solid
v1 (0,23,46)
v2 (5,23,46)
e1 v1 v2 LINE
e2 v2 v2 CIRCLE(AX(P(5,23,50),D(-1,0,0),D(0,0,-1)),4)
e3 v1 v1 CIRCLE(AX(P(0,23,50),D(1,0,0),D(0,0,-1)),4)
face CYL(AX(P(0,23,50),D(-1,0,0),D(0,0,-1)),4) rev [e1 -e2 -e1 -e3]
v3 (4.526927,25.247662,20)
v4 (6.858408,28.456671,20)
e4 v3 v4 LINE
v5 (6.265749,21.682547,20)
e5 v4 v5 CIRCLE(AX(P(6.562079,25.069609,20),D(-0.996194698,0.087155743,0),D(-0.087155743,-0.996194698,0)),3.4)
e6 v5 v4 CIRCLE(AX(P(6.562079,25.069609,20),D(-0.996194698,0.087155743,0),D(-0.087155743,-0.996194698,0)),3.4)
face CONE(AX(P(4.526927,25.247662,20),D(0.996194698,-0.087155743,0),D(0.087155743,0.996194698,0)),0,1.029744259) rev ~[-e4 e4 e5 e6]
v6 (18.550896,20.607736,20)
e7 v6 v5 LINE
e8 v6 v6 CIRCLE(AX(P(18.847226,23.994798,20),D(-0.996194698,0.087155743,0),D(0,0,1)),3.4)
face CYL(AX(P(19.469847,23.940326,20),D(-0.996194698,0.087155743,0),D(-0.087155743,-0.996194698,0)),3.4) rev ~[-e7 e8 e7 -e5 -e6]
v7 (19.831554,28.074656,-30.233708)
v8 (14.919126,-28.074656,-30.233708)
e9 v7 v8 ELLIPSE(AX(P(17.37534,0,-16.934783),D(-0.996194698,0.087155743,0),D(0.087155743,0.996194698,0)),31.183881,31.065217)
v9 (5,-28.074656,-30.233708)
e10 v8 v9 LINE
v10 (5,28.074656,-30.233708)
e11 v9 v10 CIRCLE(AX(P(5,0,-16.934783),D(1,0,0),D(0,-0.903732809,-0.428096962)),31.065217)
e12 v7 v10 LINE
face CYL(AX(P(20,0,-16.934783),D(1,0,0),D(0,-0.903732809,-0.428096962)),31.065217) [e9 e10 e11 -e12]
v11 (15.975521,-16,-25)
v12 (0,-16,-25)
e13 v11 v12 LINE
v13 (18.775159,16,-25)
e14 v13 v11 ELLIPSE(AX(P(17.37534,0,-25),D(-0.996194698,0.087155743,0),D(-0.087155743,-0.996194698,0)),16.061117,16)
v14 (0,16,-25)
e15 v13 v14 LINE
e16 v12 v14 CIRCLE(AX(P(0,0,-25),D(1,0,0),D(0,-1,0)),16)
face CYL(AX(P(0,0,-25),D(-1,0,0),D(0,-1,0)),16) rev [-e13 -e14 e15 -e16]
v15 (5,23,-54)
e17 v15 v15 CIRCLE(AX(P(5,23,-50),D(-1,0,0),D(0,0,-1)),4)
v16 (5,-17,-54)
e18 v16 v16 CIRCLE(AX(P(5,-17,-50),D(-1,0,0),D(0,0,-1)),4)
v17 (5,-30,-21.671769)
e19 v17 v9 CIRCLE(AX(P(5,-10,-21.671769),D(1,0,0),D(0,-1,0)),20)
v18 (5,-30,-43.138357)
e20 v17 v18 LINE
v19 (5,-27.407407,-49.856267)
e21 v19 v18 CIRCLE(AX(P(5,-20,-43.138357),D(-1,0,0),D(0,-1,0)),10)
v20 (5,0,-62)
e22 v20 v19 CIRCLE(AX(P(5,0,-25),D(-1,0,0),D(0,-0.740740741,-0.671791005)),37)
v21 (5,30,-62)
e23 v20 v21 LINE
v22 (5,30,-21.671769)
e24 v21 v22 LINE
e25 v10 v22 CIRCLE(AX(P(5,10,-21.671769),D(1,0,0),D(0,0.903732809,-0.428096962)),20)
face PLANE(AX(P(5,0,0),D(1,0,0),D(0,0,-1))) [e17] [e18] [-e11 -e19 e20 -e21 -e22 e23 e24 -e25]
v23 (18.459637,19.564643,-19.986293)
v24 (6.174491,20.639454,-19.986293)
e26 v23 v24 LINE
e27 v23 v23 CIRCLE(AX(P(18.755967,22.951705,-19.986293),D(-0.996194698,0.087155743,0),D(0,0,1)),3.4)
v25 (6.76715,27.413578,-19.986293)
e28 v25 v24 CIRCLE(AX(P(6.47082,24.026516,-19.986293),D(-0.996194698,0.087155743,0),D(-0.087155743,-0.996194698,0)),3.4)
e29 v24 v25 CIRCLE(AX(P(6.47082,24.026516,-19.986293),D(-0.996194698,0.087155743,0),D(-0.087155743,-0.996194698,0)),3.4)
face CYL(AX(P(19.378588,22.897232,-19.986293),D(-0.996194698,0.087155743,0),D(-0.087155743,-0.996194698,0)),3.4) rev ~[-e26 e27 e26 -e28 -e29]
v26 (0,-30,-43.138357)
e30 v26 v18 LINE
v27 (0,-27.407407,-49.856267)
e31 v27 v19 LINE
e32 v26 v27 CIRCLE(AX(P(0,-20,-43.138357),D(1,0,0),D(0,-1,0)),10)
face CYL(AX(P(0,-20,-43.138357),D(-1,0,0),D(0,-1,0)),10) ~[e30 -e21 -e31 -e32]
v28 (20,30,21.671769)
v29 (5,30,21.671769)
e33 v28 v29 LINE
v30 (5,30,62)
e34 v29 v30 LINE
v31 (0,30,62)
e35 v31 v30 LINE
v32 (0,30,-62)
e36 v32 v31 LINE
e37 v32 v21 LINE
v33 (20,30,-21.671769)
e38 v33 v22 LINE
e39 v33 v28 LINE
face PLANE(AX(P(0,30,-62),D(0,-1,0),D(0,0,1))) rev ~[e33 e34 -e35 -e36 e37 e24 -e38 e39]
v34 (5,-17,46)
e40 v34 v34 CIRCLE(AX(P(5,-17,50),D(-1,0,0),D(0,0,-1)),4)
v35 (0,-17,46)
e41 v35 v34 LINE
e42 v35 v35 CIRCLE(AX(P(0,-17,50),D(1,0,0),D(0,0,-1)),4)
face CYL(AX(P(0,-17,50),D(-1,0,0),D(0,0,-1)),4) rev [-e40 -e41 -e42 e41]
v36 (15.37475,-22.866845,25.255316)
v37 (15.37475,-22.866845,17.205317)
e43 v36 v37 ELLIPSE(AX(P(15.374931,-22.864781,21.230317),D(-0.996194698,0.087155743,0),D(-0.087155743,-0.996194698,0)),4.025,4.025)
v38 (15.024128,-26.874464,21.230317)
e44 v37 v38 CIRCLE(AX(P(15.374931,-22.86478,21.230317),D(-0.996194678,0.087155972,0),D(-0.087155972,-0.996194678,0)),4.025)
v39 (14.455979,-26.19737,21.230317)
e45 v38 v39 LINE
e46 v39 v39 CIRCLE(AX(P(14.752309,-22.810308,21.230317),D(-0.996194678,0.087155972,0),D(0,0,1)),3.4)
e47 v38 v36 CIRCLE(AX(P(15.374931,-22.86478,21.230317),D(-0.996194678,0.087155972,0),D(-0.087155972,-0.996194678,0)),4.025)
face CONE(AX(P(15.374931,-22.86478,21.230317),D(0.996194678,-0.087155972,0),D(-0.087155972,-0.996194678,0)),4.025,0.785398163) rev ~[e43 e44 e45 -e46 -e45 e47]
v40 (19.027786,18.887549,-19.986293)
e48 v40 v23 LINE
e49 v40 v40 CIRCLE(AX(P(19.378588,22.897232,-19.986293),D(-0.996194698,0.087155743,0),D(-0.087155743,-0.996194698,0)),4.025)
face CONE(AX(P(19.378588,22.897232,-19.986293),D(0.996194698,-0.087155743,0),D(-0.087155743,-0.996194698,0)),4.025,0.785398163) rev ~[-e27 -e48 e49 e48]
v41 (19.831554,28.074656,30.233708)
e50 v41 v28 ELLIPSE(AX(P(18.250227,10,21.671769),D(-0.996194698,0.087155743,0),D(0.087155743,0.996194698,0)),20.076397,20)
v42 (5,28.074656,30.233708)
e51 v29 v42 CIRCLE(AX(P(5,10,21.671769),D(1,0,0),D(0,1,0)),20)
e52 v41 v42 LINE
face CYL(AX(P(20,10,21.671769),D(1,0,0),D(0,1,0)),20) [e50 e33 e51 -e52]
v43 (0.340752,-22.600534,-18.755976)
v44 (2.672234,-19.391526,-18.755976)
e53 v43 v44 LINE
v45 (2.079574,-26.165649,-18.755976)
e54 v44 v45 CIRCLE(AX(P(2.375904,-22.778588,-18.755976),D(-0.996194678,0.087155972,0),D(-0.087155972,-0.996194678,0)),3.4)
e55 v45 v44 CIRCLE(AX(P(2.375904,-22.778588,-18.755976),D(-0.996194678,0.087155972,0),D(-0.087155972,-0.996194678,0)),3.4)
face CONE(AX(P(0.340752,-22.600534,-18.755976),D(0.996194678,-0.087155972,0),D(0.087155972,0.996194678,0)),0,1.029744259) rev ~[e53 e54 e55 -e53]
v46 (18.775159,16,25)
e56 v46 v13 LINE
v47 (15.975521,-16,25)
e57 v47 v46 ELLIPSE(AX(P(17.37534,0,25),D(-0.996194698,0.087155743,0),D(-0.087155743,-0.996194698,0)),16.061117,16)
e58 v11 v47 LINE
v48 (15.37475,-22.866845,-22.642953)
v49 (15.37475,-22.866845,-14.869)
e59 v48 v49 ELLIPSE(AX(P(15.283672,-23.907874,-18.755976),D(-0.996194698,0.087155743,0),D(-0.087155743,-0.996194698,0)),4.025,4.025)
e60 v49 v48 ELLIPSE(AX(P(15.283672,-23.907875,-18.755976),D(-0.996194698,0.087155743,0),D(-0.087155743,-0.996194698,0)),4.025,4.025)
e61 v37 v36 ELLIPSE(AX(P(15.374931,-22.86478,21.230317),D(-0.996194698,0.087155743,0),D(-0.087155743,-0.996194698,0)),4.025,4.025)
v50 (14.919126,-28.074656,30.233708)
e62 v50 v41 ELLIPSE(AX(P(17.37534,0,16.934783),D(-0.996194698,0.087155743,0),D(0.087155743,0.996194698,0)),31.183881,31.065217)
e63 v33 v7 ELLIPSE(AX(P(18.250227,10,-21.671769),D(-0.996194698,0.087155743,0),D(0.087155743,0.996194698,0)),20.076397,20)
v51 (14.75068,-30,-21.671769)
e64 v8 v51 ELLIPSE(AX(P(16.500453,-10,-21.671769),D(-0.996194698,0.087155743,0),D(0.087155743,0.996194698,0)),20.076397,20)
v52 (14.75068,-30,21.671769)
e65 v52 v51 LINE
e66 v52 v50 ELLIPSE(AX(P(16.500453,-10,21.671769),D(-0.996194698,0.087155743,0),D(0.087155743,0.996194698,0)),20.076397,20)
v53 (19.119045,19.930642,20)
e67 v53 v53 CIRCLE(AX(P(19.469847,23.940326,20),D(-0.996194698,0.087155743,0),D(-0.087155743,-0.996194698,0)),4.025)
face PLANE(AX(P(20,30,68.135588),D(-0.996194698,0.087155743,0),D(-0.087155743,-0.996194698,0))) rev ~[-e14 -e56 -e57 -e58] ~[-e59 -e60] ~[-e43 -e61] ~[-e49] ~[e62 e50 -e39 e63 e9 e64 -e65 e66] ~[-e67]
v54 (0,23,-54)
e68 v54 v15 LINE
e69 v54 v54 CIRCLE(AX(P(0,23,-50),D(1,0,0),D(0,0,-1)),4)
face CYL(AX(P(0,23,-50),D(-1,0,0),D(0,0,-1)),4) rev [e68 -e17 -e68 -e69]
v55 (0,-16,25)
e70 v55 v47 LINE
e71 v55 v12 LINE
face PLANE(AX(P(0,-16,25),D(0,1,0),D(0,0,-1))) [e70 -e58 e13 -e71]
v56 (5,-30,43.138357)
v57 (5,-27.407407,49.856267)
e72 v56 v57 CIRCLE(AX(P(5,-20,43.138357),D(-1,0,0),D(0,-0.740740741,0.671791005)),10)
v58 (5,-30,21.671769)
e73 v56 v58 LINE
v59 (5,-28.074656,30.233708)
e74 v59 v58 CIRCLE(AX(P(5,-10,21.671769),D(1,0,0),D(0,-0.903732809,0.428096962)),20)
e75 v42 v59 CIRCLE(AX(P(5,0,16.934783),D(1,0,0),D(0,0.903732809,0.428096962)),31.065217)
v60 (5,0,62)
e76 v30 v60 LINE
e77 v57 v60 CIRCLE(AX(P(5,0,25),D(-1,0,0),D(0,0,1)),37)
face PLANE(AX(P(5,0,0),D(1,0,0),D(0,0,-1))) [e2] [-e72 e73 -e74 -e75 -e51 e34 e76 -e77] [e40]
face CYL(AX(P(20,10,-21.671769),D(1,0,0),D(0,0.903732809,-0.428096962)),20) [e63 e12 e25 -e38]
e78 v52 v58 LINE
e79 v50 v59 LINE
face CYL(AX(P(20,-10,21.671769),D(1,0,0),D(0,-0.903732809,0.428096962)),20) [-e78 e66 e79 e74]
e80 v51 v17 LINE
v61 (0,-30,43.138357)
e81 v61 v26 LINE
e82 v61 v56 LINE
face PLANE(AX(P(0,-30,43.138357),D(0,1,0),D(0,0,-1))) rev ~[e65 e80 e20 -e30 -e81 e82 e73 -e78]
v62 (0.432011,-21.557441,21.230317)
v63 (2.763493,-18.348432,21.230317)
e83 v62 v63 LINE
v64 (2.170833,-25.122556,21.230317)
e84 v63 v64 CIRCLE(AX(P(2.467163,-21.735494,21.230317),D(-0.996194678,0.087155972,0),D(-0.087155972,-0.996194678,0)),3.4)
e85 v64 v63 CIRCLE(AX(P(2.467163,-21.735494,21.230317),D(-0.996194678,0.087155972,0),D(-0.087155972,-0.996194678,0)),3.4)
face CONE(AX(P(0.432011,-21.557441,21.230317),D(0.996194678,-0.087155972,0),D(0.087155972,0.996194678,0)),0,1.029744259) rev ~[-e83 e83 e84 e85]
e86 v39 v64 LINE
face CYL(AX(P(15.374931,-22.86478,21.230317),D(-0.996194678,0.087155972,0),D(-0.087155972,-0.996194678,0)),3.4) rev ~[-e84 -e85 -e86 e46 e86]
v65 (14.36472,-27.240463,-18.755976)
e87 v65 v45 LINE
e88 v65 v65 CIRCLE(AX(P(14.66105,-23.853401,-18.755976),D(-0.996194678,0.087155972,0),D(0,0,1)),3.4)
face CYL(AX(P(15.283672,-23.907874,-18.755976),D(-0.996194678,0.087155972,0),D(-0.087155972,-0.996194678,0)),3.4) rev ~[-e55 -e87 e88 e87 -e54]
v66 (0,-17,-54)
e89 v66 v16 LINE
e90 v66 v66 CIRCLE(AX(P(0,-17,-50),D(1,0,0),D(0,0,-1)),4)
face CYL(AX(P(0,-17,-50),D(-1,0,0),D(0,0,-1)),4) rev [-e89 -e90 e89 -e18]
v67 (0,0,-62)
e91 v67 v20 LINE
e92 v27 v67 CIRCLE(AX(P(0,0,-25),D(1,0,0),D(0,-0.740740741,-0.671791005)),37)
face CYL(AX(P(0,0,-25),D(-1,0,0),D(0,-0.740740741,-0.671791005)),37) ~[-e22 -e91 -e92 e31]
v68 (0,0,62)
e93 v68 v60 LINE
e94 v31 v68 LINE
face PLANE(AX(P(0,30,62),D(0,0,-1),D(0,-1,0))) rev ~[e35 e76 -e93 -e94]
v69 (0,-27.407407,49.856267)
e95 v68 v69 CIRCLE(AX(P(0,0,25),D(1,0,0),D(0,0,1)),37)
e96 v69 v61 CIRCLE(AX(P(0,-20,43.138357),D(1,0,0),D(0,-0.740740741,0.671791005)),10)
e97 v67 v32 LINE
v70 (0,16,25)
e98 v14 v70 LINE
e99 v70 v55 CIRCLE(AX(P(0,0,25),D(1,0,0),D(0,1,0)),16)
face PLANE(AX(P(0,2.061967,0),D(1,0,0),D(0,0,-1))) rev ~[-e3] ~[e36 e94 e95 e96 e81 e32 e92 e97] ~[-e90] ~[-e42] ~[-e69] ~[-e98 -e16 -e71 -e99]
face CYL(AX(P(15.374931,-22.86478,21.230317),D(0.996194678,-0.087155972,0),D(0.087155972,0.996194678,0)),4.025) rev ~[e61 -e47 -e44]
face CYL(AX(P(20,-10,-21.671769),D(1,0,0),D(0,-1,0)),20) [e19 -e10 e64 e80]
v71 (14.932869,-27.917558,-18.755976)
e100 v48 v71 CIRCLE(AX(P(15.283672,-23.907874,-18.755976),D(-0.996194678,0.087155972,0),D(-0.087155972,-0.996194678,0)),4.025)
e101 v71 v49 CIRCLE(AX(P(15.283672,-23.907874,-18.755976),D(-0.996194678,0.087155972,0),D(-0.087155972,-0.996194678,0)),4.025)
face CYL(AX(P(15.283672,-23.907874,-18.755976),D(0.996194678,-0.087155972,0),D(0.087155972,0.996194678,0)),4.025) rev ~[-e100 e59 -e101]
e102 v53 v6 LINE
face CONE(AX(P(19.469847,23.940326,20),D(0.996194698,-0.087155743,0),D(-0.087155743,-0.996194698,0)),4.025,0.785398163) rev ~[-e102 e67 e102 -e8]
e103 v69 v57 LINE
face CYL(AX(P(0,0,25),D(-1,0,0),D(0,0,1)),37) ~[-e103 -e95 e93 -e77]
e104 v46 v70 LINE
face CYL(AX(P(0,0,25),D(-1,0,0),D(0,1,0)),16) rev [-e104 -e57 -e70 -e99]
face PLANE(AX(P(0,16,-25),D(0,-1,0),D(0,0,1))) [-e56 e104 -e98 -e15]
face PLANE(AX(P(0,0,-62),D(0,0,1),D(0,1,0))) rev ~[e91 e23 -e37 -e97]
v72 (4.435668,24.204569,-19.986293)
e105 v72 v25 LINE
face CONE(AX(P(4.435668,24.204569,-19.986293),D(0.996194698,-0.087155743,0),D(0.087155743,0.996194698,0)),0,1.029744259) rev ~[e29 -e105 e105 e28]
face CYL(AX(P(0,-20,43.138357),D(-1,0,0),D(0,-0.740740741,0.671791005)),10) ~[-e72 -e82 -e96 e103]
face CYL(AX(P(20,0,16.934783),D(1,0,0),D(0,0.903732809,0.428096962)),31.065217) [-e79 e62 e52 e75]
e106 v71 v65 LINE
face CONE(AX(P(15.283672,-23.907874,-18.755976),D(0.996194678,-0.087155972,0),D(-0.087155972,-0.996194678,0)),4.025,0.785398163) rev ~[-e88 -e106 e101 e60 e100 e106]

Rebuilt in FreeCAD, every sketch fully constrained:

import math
import FreeCAD as App
import Part
import Sketcher
Q = App.Units.Quantity


def add_polygon(sketch, points):
    """Adds a closed chain of lines whose ends are joined by coincident constraints."""
    first, n = sketch.GeometryCount, len(points)
    for a, b in zip(points, points[1:] + points[:1]):
        sketch.addGeometry(Part.LineSegment(App.Vector(*a, 0), App.Vector(*b, 0)), False)
    for i in range(n):
        sketch.addConstraint(Sketcher.Constraint("Coincident", first + i, 2, first + (i + 1) % n, 1))

doc = App.newDocument("Part")
body = doc.addObject("PartDesign::Body", "Body")

# Sketch on YZ plane
sketch1 = body.newObject("Sketcher::SketchObject", "Sketch")
sketch1.AttachmentSupport = (doc.getObject("YZ_Plane"), [""])
sketch1.MapMode = "FlatFace"
sketch1.addGeometry([
    Part.LineSegment(App.Vector(-30, 43.1, 0), App.Vector(-30, -43.1, 0)),  # 0
    Part.ArcOfCircle(Part.Circle(App.Vector(-20, -43.1, 0), App.Vector(0, 0, 1), 10), math.radians(-180), math.radians(-138)),  # 1
    Part.ArcOfCircle(Part.Circle(App.Vector(0, -25, 0), App.Vector(0, 0, 1), 37), math.radians(-138), math.radians(-90)),  # 2
    Part.LineSegment(App.Vector(0, -62, 0), App.Vector(30, -62, 0)),  # 3
    Part.LineSegment(App.Vector(30, -62, 0), App.Vector(30, 62, 0)),  # 4
    Part.LineSegment(App.Vector(30, 62, 0), App.Vector(0, 62, 0)),  # 5
    Part.ArcOfCircle(Part.Circle(App.Vector(0, 25, 0), App.Vector(0, 0, 1), 37), math.radians(90), math.radians(138)),  # 6
    Part.ArcOfCircle(Part.Circle(App.Vector(-20, 43.1, 0), App.Vector(0, 0, 1), 10), math.radians(138), math.radians(180)),  # 7
    Part.Circle(App.Vector(-17, 50, 0), App.Vector(0, 0, 1), 4),  # 8
    Part.LineSegment(App.Vector(-16, -25, 0), App.Vector(-16, 25, 0)),  # 9
    Part.ArcOfCircle(Part.Circle(App.Vector(0, 25, 0), App.Vector(0, 0, 1), 16), math.radians(0), math.radians(180)),  # 10
    Part.LineSegment(App.Vector(16, 25, 0), App.Vector(16, -25, 0)),  # 11
    Part.ArcOfCircle(Part.Circle(App.Vector(0, -25, 0), App.Vector(0, 0, 1), 16), math.radians(180), math.radians(360)),  # 12
    Part.Circle(App.Vector(-17, -50, 0), App.Vector(0, 0, 1), 4),  # 13
    Part.Circle(App.Vector(23, 50, 0), App.Vector(0, 0, 1), 4),  # 14
    Part.Circle(App.Vector(23, -50, 0), App.Vector(0, 0, 1), 4),  # 15
], False)
sketch1.addConstraint([
    Sketcher.Constraint("Tangent", 0, 2, 1, 1),
    Sketcher.Constraint("Tangent", 1, 2, 2, 1),
    Sketcher.Constraint("Tangent", 2, 2, 3, 1),
    Sketcher.Constraint("Coincident", 3, 2, 4, 1),
    Sketcher.Constraint("Coincident", 4, 2, 5, 1),
    Sketcher.Constraint("Tangent", 5, 2, 6, 1),
    Sketcher.Constraint("Tangent", 6, 2, 7, 1),
    Sketcher.Constraint("Tangent", 7, 2, 0, 1),
    Sketcher.Constraint("Tangent", 9, 2, 10, 2),
    Sketcher.Constraint("Tangent", 10, 1, 11, 1),
    Sketcher.Constraint("Tangent", 11, 2, 12, 2),
    Sketcher.Constraint("Tangent", 12, 1, 9, 1),
    Sketcher.Constraint("Vertical", 0),
    Sketcher.Constraint("Horizontal", 3),
    Sketcher.Constraint("Vertical", 4),
    Sketcher.Constraint("Horizontal", 5),
    Sketcher.Constraint("Vertical", 9),
    Sketcher.Constraint("Vertical", 11),
    Sketcher.Constraint("Coincident", 10, 3, 6, 3),
    Sketcher.Constraint("Coincident", 12, 3, 2, 3),
    Sketcher.Constraint("Equal", 2, 6),
    Sketcher.Constraint("Equal", 1, 7),
    Sketcher.Constraint("Equal", 8, 13),
    Sketcher.Constraint("Equal", 13, 14),
    Sketcher.Constraint("Equal", 14, 15),
    Sketcher.Constraint("Symmetric", 2, 3, 6, 3, -1, 1),
    Sketcher.Constraint("Symmetric", 8, 3, 13, 3, -1),
    Sketcher.Constraint("Symmetric", 14, 3, 15, 3, -1),
    Sketcher.Constraint("Horizontal", 8, 3, 14, 3),
    Sketcher.Constraint("Diameter", 8, 8.0),
    Sketcher.Constraint("Radius", 1, 10.0),
    Sketcher.Constraint("Radius", 2, 37.0),
    Sketcher.Constraint("Radius", 10, 16.0),
    Sketcher.Constraint("DistanceX", 3, 1, 3, 2, 30.0),
    Sketcher.Constraint("DistanceY", 4, 1, 4, 2, 124.0),
    Sketcher.Constraint("DistanceX", 1, 3, -1, 1, 20.0),
    Sketcher.Constraint("DistanceX", 8, 3, -1, 1, 17.0),
    Sketcher.Constraint("DistanceY", -1, 1, 8, 3, 50.0),
    Sketcher.Constraint("DistanceX", -1, 1, 14, 3, 23.0),
])
pad1 = body.newObject("PartDesign::Pad", "Pad")
pad1.Profile = sketch1
pad1.Length = 20

# Sketch on YZ plane
sketch2 = body.newObject("Sketcher::SketchObject", "Sketch001")
sketch2.AttachmentSupport = (doc.getObject("YZ_Plane"), [""])
sketch2.MapMode = "FlatFace"
sketch2.AttachmentOffset = App.Placement(App.Vector(0, 0, 20), App.Rotation())
add_polygon(sketch2, [(45, 77), (-45, 77), (-45, -77), (45, -77)])  # lines 0-3
sketch2.addGeometry(Part.LineSegment(App.Vector(30, 22, 0), App.Vector(30, -22, 0)), False)  # 4
sketch2.addGeometry(Part.ArcOfCircle(Part.Circle(App.Vector(10, -22, 0), App.Vector(0, 0, 1), 20), math.radians(-25), math.radians(0)), False)  # 5
sketch2.addGeometry(Part.ArcOfCircle(Part.Circle(App.Vector(0, -17, 0), App.Vector(0, 0, 1), 31), math.radians(-155), math.radians(-25)), False)  # 6
sketch2.addGeometry(Part.ArcOfCircle(Part.Circle(App.Vector(-10, -22, 0), App.Vector(0, 0, 1), 20), math.radians(-180), math.radians(-155)), False)  # 7
sketch2.addGeometry(Part.LineSegment(App.Vector(-30, -22, 0), App.Vector(-30, 22, 0)), False)  # 8
sketch2.addGeometry(Part.ArcOfCircle(Part.Circle(App.Vector(-10, 22, 0), App.Vector(0, 0, 1), 20), math.radians(155), math.radians(180)), False)  # 9
sketch2.addGeometry(Part.ArcOfCircle(Part.Circle(App.Vector(0, 17, 0), App.Vector(0, 0, 1), 31), math.radians(25), math.radians(155)), False)  # 10
sketch2.addGeometry(Part.ArcOfCircle(Part.Circle(App.Vector(10, 22, 0), App.Vector(0, 0, 1), 20), math.radians(0), math.radians(25)), False)  # 11
sketch2.addGeometry(Part.LineSegment(App.Vector(-16, 25, 0), App.Vector(-16, -25, 0)), False)  # 12
sketch2.addGeometry(Part.ArcOfCircle(Part.Circle(App.Vector(0, -25, 0), App.Vector(0, 0, 1), 16), math.radians(180), math.radians(360)), False)  # 13
sketch2.addGeometry(Part.LineSegment(App.Vector(16, -25, 0), App.Vector(16, 25, 0)), False)  # 14
sketch2.addGeometry(Part.ArcOfCircle(Part.Circle(App.Vector(0, 25, 0), App.Vector(0, 0, 1), 16), math.radians(0), math.radians(180)), False)  # 15
sketch2.addConstraint([
    Sketcher.Constraint("Tangent", 4, 2, 5, 2),
    Sketcher.Constraint("Tangent", 5, 1, 6, 2),
    Sketcher.Constraint("Tangent", 6, 1, 7, 2),
    Sketcher.Constraint("Tangent", 7, 1, 8, 1),
    Sketcher.Constraint("Tangent", 8, 2, 9, 2),
    Sketcher.Constraint("Tangent", 9, 1, 10, 2),
    Sketcher.Constraint("Tangent", 10, 1, 11, 2),
    Sketcher.Constraint("Tangent", 11, 1, 4, 1),
    Sketcher.Constraint("Tangent", 12, 2, 13, 1),
    Sketcher.Constraint("Tangent", 13, 2, 14, 1),
    Sketcher.Constraint("Tangent", 14, 2, 15, 1),
    Sketcher.Constraint("Tangent", 15, 2, 12, 1),
    Sketcher.Constraint("Horizontal", 0),
    Sketcher.Constraint("Vertical", 1),
    Sketcher.Constraint("Horizontal", 2),
    Sketcher.Constraint("Vertical", 3),
    Sketcher.Constraint("Vertical", 4),
    Sketcher.Constraint("Vertical", 8),
    Sketcher.Constraint("Vertical", 12),
    Sketcher.Constraint("Vertical", 14),
    Sketcher.Constraint("Equal", 5, 7),
    Sketcher.Constraint("Equal", 7, 9),
    Sketcher.Constraint("Equal", 6, 10),
    Sketcher.Constraint("Equal", 9, 11),
    Sketcher.Constraint("Symmetric", 5, 3, 9, 3, -1, 1),
    Sketcher.Constraint("Symmetric", 13, 3, 15, 3, -1, 1),
    Sketcher.Constraint("Symmetric", 0, 2, 2, 2, -1, 1),
    Sketcher.Constraint("Symmetric", 6, 3, 10, 3, -1),
    Sketcher.Constraint("Radius", 5, 20.0),
    Sketcher.Constraint("Radius", 13, 16.0),
    Sketcher.Constraint("DistanceY", 12, 2, 12, 1, 50.0),
    Sketcher.Constraint("DistanceX", -1, 1, 5, 3, 10.0),
    Sketcher.Constraint("DistanceX", 0, 2, 0, 1, 89.84),
    Sketcher.Constraint("DistanceY", 1, 2, 1, 1, 153.84),
    Sketcher.Constraint("Radius", 6, 31.065217),
    Sketcher.Constraint("DistanceY", 4, 2, 4, 1, 43.343537),
])
pocket1 = body.newObject("PartDesign::Pocket", "Pocket")
pocket1.Profile = sketch2
pocket1.Length = 15

# Sketch on XY plane
sketch3 = body.newObject("Sketcher::SketchObject", "Sketch002")
sketch3.AttachmentSupport = (doc.getObject("XY_Plane"), [""])
sketch3.MapMode = "FlatFace"
sketch3.AttachmentOffset = App.Placement(App.Vector(0, 0, -62), App.Rotation())
add_polygon(sketch3, [(15, -30), (20, 30), (20, -30)])  # lines 0-2
sketch3.addConstraint([
    Sketcher.Constraint("Vertical", 1),
    Sketcher.Constraint("Horizontal", 2),
    Sketcher.Constraint("DistanceY", 1, 2, 1, 1, 60.0),
    Sketcher.Constraint("Angle", 0, Q("85 deg")),
    Sketcher.Constraint("DistanceX", -1, 1, 0, 2, 20.0),
    Sketcher.Constraint("DistanceY", -1, 1, 0, 2, 30.0),
])
pocket2 = body.newObject("PartDesign::Pocket", "Pocket001")
pocket2.Profile = sketch3
pocket2.Type = "ThroughAll"
pocket2.Midplane = True

# Sketch on an angled plane
sketch4 = body.newObject("Sketcher::SketchObject", "Sketch003")
sketch4.Placement = App.Placement(App.Vector(17.243355, -1.508598, 0), App.Rotation(App.Vector(0.087155743, 0.996194698, 0), App.Vector(0, 0, 1), App.Vector(0.996194698, -0.087155743, 0), "ZXY"))
sketch4.addGeometry([
    Part.Circle(App.Vector(25.5, 20, 0), App.Vector(0, 0, 1), 3.4),
    Part.Circle(App.Vector(24.5, -20, 0), App.Vector(0, 0, 1), 3.4),
], False)
sketch4.addConstraint([
    Sketcher.Constraint("Equal", 0, 1),
    Sketcher.Constraint("Diameter", 0, 6.8),
    Sketcher.Constraint("DistanceY", -1, 1, 0, 3, 20.0),
    Sketcher.Constraint("DistanceX", -1, 1, 0, 3, 25.546135),
    Sketcher.Constraint("DistanceX", -1, 1, 1, 3, 24.499057),
    Sketcher.Constraint("DistanceY", 1, 3, -1, 1, 19.986293),
])
doc.recompute()
hole = body.newObject("PartDesign::Hole", "Hole")
hole.Profile = sketch4
hole.ThreadType = "None"
hole.Diameter = 6.8
hole.DepthType = "Dimension"
hole.Depth = 12.957074
hole.DrillPoint = "Angled"
hole.DrillPointAngle = 118
hole.HoleCutType = "Countersink"
hole.HoleCutDiameter = 8.05
hole.HoleCutCountersinkAngle = 90

# Sketch on an angled plane
sketch5 = body.newObject("Sketcher::SketchObject", "Sketch004")
sketch5.Placement = App.Placement(App.Vector(17.243359, -1.508602, 0), App.Rotation(App.Vector(0.087155972, 0.996194678, 0), App.Vector(0, 0, 1), App.Vector(0.996194678, -0.087155972, 0), "ZXY"))
sketch5.addGeometry([
    Part.Circle(App.Vector(-21.4, 21.2, 0), App.Vector(0, 0, 1), 3.4),
    Part.Circle(App.Vector(-22.5, -18.8, 0), App.Vector(0, 0, 1), 3.4),
], False)
sketch5.addConstraint([
    Sketcher.Constraint("Equal", 0, 1),
    Sketcher.Constraint("Diameter", 0, 6.8),
    Sketcher.Constraint("DistanceX", 0, 3, -1, 1, 21.437756),
    Sketcher.Constraint("DistanceY", -1, 1, 0, 3, 21.230317),
    Sketcher.Constraint("DistanceX", 1, 3, -1, 1, 22.484833),
    Sketcher.Constraint("DistanceY", 1, 3, -1, 1, 18.755976),
])
doc.recompute()
hole2 = body.newObject("PartDesign::Hole", "Hole001")
hole2.Profile = sketch5
hole2.ThreadType = "None"
hole2.Diameter = 6.8
hole2.DepthType = "Dimension"
hole2.Depth = 12.957074
hole2.DrillPoint = "Angled"
hole2.DrillPointAngle = 118
hole2.HoleCutType = "Countersink"
hole2.HoleCutDiameter = 8.05
hole2.HoleCutCountersinkAngle = 90

doc.recompute()
